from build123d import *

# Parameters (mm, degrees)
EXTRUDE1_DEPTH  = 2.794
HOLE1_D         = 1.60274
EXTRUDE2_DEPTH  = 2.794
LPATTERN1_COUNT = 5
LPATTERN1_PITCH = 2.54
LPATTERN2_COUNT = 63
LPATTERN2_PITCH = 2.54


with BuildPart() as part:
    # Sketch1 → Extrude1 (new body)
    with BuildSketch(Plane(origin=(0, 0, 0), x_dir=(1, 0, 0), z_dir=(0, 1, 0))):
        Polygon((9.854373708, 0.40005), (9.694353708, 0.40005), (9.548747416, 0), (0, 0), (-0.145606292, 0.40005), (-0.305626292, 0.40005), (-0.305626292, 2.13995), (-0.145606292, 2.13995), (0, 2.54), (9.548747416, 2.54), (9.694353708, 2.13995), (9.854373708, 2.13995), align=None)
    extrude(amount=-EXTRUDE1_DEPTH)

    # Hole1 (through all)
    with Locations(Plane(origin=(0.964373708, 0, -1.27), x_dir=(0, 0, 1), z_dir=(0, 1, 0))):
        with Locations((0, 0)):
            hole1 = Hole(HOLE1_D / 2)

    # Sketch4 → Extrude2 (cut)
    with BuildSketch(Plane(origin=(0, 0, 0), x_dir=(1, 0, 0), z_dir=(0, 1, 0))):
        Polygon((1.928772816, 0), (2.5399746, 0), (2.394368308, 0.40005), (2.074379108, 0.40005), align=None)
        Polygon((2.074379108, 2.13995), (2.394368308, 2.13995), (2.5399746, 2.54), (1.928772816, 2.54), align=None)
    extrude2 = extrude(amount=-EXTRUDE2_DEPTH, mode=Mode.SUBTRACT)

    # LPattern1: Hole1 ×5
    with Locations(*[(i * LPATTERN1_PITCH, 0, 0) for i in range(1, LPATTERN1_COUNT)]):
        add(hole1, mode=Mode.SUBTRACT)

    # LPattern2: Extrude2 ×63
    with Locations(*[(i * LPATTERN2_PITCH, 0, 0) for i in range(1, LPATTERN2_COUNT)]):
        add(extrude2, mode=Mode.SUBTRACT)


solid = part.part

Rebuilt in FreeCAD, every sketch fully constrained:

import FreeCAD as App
import Part
import Sketcher

V = App.Vector
Q = App.Units.Quantity

doc = App.newDocument("Part")
body = doc.addObject("PartDesign::Body", "Body")

sketch1 = doc.addObject("Sketcher::SketchObject", "Sketch")
body.addObject(sketch1)
sketch1.AttachmentSupport = (doc.XZ_Plane, [""])
sketch1.MapMode = "FlatFace"
sketch1.addGeometry([
    Part.LineSegment(V(9.69, -0.4, 0), V(9.85, -0.4, 0)),
    Part.LineSegment(V(9.85, -0.4, 0), V(9.85, -2.14, 0)),
    Part.LineSegment(V(9.85, -2.14, 0), V(9.69, -2.14, 0)),
    Part.LineSegment(V(9.69, -2.14, 0), V(9.55, -2.54, 0)),
    Part.LineSegment(V(9.55, -2.54, 0), V(0, -2.54, 0)),
    Part.LineSegment(V(0, -2.54, 0), V(-0.15, -2.14, 0)),
    Part.LineSegment(V(-0.15, -2.14, 0), V(-0.31, -2.14, 0)),
    Part.LineSegment(V(-0.31, -2.14, 0), V(-0.31, -0.4, 0)),
    Part.LineSegment(V(-0.31, -0.4, 0), V(-0.15, -0.4, 0)),
    Part.LineSegment(V(-0.15, -0.4, 0), V(0, 0, 0)),
    Part.LineSegment(V(0, 0, 0), V(9.55, 0, 0)),
    Part.LineSegment(V(9.55, 0, 0), V(9.69, -0.4, 0)),
], False)
sketch1.addConstraint([
    Sketcher.Constraint("Coincident", 0, 2, 1, 1),
    Sketcher.Constraint("Coincident", 1, 2, 2, 1),
    Sketcher.Constraint("Coincident", 2, 2, 3, 1),
    Sketcher.Constraint("Coincident", 3, 2, 4, 1),
    Sketcher.Constraint("Coincident", 4, 2, 5, 1),
    Sketcher.Constraint("Coincident", 5, 2, 6, 1),
    Sketcher.Constraint("Coincident", 6, 2, 7, 1),
    Sketcher.Constraint("Coincident", 7, 2, 8, 1),
    Sketcher.Constraint("Coincident", 8, 2, 9, 1),
    Sketcher.Constraint("Coincident", 9, 2, 10, 1),
    Sketcher.Constraint("Coincident", 10, 2, 11, 1),
    Sketcher.Constraint("Coincident", 11, 2, 0, 1),
    Sketcher.Constraint("Horizontal", 0),
    Sketcher.Constraint("Vertical", 1),
    Sketcher.Constraint("Horizontal", 2),
    Sketcher.Constraint("Horizontal", 4),
    Sketcher.Constraint("Horizontal", 6),
    Sketcher.Constraint("Vertical", 7),
    Sketcher.Constraint("Horizontal", 8),
    Sketcher.Constraint("Horizontal", 10),
    Sketcher.Constraint("Coincident", 9, 2, -1, 1),
    Sketcher.Constraint("PointOnObject", 4, 2, -2),
    Sketcher.Constraint("Parallel", 3, 9),
    Sketcher.Constraint("Parallel", 5, 11),
    Sketcher.Constraint("Horizontal", 2, 2, 5, 2),
    Sketcher.Constraint("Horizontal", 0, 2, 7, 2),
    Sketcher.Constraint("Vertical", 5, 2, 8, 2),
    Sketcher.Constraint("Vertical", 3, 2, 10, 2),
    Sketcher.Constraint("Vertical", 2, 2, 11, 2),
    Sketcher.Constraint("Equal", 2, 6),
    Sketcher.Constraint("Angle", 3, Q("-110 deg")),
    Sketcher.Constraint("DistanceY", 3, 2, -1, 1, Q("0.1 in")),
    Sketcher.Constraint("DistanceX", 6, 2, 1, 2, Q("0.4 in")),
    Sketcher.Constraint("DistanceX", 0, 1, 0, 2, Q("0.0063 in")),
    Sketcher.Constraint("DistanceY", 1, 2, 1, 1, Q("0.0685 in")),
])
pad1 = doc.addObject("PartDesign::Pad", "Pad")
body.addObject(pad1)
pad1.Profile = sketch1
pad1.Length = Q("0.11 in")

sketch2 = doc.addObject("Sketcher::SketchObject", "Sketch001")
body.addObject(sketch2)
sketch2.AttachmentSupport = (doc.XZ_Plane, [""])
sketch2.MapMode = "FlatFace"
sketch2.addGeometry(Part.Circle(V(1, -1.3, 0), V(0, 0, 1), 0.8), False)
sketch2.addConstraint([
    Sketcher.Constraint("Diameter", 0, Q("0.0631 in")),
    Sketcher.Constraint("DistanceY", 0, 3, -1, 1, Q("0.05 in")),
    Sketcher.Constraint("DistanceX", -1, 1, 0, 3, Q("0.964374 mm")),
])
doc.recompute()
hole = doc.addObject("PartDesign::Hole", "Hole")
body.addObject(hole)
hole.Profile = sketch2
hole.ThreadType = "None"
hole.Diameter = Q("0.0631 in")
hole.DepthType = "ThroughAll"
hole.Reversed = True

sketch3 = doc.addObject("Sketcher::SketchObject", "Sketch002")
body.addObject(sketch3)
sketch3.AttachmentSupport = (doc.XZ_Plane, [""])
sketch3.MapMode = "FlatFace"
sketch3.addGeometry([
    Part.LineSegment(V(1.93, 0, 0), V(2.54, 0, 0)),
    Part.LineSegment(V(2.54, 0, 0), V(2.39, -0.4, 0)),
    Part.LineSegment(V(2.39, -0.4, 0), V(2.07, -0.4, 0)),
    Part.LineSegment(V(2.07, -0.4, 0), V(1.93, 0, 0)),
    Part.LineSegment(V(2.07, -2.14, 0), V(2.39, -2.14, 0)),
    Part.LineSegment(V(2.39, -2.14, 0), V(2.54, -2.54, 0)),
    Part.LineSegment(V(2.54, -2.54, 0), V(1.93, -2.54, 0)),
    Part.LineSegment(V(1.93, -2.54, 0), V(2.07, -2.14, 0)),
], False)
sketch3.addConstraint([
    Sketcher.Constraint("Coincident", 0, 2, 1, 1),
    Sketcher.Constraint("Coincident", 1, 2, 2, 1),
    Sketcher.Constraint("Coincident", 2, 2, 3, 1),
    Sketcher.Constraint("Coincident", 3, 2, 0, 1),
    Sketcher.Constraint("Coincident", 4, 2, 5, 1),
    Sketcher.Constraint("Coincident", 5, 2, 6, 1),
    Sketcher.Constraint("Coincident", 6, 2, 7, 1),
    Sketcher.Constraint("Coincident", 7, 2, 4, 1),
    Sketcher.Constraint("Horizontal", 0),
    Sketcher.Constraint("Horizontal", 2),
    Sketcher.Constraint("Horizontal", 4),
    Sketcher.Constraint("Horizontal", 6),
    Sketcher.Constraint("PointOnObject", 0, 2, -1),
    Sketcher.Constraint("Parallel", 3, 5),
    Sketcher.Constraint("Parallel", 1, 7),
    Sketcher.Constraint("Vertical", 1, 2, 4, 2),
    Sketcher.Constraint("Vertical", 0, 2, 5, 2),
    Sketcher.Constraint("Vertical", 3, 2, 6, 2),
    Sketcher.Constraint("Vertical", 2, 2, 7, 2),
    Sketcher.Constraint("Angle", 1, Q("-110 deg")),
    Sketcher.Constraint("DistanceY", 5, 2, -1, 1, Q("0.1 in")),
    Sketcher.Constraint("DistanceX", 0, 1, 0, 2, Q("0.611202 mm")),
    Sketcher.Constraint("DistanceY", 4, 2, 1, 2, Q("0.0685 in")),
    Sketcher.Constraint("DistanceX", -1, 1, 1, 2, Q("2.394368 mm")),
])
pocket1 = doc.addObject("PartDesign::Pocket", "Pocket")
body.addObject(pocket1)
pocket1.Profile = sketch3
pocket1.Length = Q("0.11 in")
pocket1.Reversed = True
doc.recompute()

linearpattern = doc.addObject("PartDesign::LinearPattern", "LinearPattern")
body.addObject(linearpattern)
linearpattern.Originals = [hole]
linearpattern.Direction = (doc.X_Axis, [""])
linearpattern.Mode = "offset"
linearpattern.Offset = Q("0.1 in")
linearpattern.Occurrences = 5
body.Tip = linearpattern
doc.recompute()

linearpattern2 = doc.addObject("PartDesign::LinearPattern", "LinearPattern001")
body.addObject(linearpattern2)
linearpattern2.Originals = [pocket1]
linearpattern2.Direction = (doc.X_Axis, [""])
linearpattern2.Mode = "offset"
linearpattern2.Offset = Q("0.1 in")
linearpattern2.Occurrences = 63
body.Tip = linearpattern2

doc.recompute()
